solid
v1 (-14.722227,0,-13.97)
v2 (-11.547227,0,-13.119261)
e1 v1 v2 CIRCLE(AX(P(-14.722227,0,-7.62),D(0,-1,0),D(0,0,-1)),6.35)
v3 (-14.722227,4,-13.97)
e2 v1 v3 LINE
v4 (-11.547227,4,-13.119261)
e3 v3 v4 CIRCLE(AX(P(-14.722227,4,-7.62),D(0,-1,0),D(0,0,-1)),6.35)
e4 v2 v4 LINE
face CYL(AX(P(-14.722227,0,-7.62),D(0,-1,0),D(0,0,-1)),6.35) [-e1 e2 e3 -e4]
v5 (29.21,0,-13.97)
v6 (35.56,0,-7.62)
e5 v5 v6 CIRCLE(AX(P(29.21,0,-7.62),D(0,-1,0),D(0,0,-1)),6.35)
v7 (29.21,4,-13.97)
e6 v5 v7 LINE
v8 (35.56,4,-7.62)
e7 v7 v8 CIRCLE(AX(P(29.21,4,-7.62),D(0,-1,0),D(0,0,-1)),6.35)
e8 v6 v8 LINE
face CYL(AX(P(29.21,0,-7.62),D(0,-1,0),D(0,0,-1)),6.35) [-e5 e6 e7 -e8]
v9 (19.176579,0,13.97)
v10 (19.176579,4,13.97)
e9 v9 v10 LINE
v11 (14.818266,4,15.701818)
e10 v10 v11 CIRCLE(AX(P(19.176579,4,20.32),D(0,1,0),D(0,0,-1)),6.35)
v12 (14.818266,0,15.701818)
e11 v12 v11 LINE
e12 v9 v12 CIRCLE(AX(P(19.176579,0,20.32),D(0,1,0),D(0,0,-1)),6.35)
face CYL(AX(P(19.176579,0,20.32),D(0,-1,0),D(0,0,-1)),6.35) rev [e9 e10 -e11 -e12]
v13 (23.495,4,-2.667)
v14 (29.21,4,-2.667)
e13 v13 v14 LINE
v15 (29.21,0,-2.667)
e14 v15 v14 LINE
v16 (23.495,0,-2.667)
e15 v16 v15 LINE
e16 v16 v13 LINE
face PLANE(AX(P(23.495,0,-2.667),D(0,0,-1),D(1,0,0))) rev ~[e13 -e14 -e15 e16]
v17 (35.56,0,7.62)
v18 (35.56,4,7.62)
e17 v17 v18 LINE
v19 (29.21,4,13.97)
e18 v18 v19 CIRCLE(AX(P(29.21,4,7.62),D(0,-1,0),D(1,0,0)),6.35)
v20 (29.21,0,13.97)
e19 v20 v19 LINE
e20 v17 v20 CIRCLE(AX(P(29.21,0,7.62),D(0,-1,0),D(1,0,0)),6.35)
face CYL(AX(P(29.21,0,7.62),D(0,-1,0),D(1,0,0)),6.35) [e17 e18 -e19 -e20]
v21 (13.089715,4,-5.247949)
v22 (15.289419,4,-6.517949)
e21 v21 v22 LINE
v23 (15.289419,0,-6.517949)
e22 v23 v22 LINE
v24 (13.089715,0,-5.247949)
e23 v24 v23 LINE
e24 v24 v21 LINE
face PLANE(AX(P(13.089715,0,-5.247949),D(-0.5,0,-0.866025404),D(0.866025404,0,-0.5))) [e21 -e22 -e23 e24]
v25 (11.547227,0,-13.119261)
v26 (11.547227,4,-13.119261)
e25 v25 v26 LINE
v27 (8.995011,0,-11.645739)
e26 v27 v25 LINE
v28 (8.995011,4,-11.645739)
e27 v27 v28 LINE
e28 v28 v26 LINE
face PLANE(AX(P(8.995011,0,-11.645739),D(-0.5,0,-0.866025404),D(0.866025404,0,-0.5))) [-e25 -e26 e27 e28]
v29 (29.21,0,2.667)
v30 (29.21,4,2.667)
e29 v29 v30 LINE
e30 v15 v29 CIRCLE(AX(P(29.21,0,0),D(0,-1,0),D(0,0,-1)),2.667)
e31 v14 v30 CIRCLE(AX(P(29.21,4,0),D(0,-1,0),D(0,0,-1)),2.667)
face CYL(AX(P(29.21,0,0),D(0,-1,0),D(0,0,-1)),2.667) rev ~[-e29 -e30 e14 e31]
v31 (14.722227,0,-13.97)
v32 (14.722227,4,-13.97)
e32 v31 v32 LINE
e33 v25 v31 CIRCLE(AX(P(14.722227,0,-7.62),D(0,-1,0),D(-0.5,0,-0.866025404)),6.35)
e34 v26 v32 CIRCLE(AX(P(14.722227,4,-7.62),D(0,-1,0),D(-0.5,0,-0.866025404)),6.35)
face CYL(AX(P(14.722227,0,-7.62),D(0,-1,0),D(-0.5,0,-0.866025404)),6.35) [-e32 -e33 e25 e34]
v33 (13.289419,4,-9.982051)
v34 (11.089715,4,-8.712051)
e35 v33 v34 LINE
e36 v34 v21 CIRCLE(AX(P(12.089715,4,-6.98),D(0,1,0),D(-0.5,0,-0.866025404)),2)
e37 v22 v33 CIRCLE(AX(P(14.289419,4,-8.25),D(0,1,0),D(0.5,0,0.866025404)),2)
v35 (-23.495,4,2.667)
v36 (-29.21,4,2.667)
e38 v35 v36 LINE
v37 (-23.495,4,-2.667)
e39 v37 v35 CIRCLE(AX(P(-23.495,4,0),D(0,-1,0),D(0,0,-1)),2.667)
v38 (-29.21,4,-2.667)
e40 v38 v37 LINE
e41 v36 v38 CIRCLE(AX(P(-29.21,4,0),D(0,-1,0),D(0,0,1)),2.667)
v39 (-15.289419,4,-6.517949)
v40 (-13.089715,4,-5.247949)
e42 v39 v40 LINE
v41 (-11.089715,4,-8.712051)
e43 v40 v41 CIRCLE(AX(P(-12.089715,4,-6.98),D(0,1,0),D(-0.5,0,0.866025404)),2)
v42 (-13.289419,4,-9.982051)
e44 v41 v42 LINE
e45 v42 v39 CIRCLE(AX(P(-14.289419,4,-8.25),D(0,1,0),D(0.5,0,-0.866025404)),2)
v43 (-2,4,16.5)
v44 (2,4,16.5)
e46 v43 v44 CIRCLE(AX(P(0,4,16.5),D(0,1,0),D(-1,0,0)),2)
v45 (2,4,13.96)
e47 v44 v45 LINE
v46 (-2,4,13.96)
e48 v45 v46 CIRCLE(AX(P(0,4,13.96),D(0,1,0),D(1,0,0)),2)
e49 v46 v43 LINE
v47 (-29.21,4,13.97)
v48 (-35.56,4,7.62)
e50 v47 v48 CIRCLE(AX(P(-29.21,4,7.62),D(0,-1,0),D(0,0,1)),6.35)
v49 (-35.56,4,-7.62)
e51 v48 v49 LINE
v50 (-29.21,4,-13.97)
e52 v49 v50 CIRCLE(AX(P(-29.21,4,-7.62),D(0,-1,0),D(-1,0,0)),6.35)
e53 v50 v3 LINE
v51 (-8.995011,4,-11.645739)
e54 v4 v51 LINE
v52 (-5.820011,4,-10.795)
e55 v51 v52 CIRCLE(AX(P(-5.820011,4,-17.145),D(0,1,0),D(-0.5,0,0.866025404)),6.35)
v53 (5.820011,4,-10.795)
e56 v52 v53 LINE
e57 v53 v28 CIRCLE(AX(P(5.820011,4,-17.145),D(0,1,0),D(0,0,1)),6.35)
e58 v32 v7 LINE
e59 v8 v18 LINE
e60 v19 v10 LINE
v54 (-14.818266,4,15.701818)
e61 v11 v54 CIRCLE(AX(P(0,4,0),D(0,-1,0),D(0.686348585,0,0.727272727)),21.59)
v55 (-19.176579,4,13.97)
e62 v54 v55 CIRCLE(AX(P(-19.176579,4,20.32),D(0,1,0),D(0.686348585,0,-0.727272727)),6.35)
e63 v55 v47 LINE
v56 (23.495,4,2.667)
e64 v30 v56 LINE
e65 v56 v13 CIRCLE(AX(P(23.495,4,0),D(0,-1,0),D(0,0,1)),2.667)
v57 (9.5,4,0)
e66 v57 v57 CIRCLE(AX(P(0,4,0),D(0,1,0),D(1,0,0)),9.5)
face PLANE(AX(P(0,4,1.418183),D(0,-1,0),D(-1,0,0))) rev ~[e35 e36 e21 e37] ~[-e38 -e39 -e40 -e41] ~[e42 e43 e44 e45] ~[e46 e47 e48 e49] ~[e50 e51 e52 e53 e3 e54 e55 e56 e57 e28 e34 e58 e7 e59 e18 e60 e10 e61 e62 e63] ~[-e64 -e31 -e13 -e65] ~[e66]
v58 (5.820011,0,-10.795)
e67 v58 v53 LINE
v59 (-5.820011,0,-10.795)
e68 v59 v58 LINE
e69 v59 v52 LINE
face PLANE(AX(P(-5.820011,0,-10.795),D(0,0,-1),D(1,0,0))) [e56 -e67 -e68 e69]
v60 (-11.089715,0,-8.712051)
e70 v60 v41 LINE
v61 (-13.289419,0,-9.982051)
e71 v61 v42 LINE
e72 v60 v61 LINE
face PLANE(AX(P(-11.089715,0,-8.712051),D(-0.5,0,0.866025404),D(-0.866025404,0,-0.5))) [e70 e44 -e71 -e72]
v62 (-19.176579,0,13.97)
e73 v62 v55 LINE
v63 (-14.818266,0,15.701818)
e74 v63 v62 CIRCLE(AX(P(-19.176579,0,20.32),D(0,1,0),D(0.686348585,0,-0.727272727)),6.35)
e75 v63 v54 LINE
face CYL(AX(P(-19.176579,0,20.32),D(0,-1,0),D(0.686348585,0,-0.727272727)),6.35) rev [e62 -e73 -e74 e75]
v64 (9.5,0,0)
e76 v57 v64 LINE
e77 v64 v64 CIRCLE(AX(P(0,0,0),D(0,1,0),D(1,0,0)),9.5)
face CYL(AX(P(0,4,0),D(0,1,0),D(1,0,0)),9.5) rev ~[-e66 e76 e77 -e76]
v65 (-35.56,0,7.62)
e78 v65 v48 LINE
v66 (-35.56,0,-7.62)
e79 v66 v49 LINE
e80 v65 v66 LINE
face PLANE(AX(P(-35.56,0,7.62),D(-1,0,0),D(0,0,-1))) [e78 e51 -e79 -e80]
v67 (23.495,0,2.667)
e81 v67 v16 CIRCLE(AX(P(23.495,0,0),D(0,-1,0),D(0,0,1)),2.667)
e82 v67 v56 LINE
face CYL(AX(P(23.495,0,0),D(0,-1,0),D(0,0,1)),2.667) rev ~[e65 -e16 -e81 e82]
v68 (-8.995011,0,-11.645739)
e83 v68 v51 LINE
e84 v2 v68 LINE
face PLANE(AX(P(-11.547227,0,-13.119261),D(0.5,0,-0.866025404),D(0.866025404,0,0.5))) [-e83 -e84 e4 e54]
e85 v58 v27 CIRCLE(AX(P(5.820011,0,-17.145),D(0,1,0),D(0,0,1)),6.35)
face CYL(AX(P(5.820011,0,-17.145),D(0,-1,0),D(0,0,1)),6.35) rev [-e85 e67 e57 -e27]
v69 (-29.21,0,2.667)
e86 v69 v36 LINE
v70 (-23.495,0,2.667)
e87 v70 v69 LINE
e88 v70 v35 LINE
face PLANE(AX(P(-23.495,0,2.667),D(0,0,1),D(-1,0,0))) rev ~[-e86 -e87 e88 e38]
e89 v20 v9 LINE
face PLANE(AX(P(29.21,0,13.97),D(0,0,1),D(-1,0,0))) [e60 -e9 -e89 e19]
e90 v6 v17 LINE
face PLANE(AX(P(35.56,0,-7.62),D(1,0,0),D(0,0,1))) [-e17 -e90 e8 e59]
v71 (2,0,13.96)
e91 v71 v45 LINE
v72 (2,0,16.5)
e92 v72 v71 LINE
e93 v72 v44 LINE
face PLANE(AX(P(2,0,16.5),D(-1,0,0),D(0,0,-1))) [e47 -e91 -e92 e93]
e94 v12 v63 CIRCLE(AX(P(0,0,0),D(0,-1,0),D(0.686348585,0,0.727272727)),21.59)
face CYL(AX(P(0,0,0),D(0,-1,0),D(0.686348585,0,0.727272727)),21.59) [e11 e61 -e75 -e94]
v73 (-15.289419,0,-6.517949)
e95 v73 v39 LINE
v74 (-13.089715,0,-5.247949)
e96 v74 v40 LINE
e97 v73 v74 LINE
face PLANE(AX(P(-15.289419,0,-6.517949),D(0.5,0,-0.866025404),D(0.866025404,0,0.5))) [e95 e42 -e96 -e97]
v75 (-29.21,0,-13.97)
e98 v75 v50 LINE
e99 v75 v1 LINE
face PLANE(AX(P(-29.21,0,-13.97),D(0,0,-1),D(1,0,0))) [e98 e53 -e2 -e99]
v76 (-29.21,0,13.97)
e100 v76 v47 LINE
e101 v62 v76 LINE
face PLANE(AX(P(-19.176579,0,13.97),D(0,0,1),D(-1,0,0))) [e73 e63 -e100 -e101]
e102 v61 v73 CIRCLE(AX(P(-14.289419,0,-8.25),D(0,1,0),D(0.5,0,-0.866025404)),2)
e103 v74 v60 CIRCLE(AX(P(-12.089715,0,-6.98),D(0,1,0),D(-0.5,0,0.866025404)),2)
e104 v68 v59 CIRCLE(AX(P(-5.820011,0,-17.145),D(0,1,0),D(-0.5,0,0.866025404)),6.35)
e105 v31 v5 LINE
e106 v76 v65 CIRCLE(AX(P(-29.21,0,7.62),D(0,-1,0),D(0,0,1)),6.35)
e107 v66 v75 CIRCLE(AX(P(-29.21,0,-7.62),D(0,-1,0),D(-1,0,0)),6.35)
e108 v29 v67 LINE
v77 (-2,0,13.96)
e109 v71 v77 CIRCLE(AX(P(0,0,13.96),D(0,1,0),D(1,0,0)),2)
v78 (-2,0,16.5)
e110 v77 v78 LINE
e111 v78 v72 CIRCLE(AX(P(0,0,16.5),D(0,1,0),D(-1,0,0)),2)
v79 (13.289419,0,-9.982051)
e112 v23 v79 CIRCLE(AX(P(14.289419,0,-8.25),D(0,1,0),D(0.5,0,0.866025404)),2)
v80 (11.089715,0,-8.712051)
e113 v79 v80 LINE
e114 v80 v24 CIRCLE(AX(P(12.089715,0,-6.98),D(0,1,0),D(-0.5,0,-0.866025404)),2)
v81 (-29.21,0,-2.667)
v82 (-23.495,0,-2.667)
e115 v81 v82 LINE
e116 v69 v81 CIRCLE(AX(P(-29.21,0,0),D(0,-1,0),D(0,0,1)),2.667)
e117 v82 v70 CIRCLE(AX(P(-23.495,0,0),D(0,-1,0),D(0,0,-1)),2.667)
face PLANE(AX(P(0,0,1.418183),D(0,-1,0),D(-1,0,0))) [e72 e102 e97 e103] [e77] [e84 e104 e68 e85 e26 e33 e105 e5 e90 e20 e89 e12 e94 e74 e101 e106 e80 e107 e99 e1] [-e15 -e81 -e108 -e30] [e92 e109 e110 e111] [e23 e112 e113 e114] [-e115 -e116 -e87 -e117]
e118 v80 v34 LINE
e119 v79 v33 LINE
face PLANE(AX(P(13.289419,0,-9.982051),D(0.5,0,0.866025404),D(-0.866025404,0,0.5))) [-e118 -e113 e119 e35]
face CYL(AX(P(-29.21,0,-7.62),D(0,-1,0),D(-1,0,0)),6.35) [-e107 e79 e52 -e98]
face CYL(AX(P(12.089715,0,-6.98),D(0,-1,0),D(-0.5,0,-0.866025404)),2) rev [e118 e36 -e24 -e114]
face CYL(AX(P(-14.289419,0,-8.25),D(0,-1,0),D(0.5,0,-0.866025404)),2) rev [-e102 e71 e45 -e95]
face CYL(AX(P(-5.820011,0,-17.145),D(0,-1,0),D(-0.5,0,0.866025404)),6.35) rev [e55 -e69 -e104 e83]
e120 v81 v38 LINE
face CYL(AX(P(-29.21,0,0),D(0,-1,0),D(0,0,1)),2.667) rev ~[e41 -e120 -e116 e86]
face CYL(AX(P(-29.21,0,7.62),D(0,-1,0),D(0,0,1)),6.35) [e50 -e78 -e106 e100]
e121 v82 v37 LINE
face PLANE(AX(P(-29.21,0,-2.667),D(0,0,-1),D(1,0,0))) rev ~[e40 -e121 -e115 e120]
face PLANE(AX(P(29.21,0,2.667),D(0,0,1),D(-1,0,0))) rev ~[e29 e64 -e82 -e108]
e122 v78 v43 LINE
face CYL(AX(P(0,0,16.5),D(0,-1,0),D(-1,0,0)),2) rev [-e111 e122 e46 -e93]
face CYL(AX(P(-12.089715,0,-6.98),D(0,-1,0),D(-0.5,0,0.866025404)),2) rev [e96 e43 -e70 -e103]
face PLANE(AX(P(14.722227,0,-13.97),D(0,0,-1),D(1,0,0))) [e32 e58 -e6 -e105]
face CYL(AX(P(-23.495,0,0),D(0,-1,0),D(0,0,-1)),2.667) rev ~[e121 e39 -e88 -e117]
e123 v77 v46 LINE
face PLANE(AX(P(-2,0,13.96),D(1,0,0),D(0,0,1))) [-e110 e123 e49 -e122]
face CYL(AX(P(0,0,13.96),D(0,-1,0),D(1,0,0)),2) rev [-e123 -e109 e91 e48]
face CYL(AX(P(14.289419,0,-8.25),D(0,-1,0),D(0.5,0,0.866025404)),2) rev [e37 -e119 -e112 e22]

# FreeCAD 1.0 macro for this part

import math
import FreeCAD as App
import Part
import Sketcher

V = App.Vector
Q = App.Units.Quantity

doc = App.newDocument("Part")
params = doc.addObject("Spreadsheet::Sheet", "Params")
for row, (alias, value) in enumerate([
    ("sketch1_radius", "0.25 in"),
    ("sketch1_radius2", "0.85 in"),
    ("sketch1_height", "0.6 in"),
    ("sketch1_height2", "0.1 in"),
    ("sketch1_radius3", "0.105 in"),
    ("pad1_length", "4 mm"),
], start=1):
    params.set(f"A{row}", alias)
    params.set(f"B{row}", "=" + value)
    params.setAlias(f"B{row}", alias)

body = doc.addObject("PartDesign::Body", "Body")

sketch1 = body.newObject("Sketcher::SketchObject", "Sketch")
sketch1.AttachmentSupport = (doc.getObject("XZ_Plane"), [""])
sketch1.MapMode = "FlatFace"
sketch1.addGeometry([
    Part.LineSegment(V(29.2, -14, 0), V(14.7, -14, 0)),
    Part.ArcOfCircle(Part.Circle(V(14.7, -7.6, 0), V(0, 0, 1), 6.3), math.radians(-120), math.radians(-90)),
    Part.LineSegment(V(11.5, -13.1, 0), V(9, -11.6, 0)),
    Part.ArcOfCircle(Part.Circle(V(5.8, -17.1, 0), V(0, 0, 1), 6.4), math.radians(60), math.radians(90)),
    Part.LineSegment(V(5.8, -10.8, 0), V(-5.8, -10.8, 0)),
    Part.ArcOfCircle(Part.Circle(V(-5.8, -17.1, 0), V(0, 0, 1), 6.4), math.radians(90), math.radians(120)),
    Part.LineSegment(V(-9, -11.6, 0), V(-11.5, -13.1, 0)),
    Part.ArcOfCircle(Part.Circle(V(-14.7, -7.6, 0), V(0, 0, 1), 6.3), math.radians(-90), math.radians(-60)),
    Part.LineSegment(V(-14.7, -14, 0), V(-29.2, -14, 0)),
    Part.ArcOfCircle(Part.Circle(V(-29.2, -7.6, 0), V(0, 0, 1), 6.3), math.radians(180), math.radians(270)),
    Part.LineSegment(V(-35.6, -7.6, 0), V(-35.6, 7.6, 0)),
    Part.ArcOfCircle(Part.Circle(V(-29.2, 7.6, 0), V(0, 0, 1), 6.3), math.radians(90), math.radians(180)),
    Part.LineSegment(V(-29.2, 14, 0), V(-19.2, 14, 0)),
    Part.ArcOfCircle(Part.Circle(V(-19.2, 20.3, 0), V(0, 0, 1), 6.3), math.radians(-90), math.radians(-47)),
    Part.ArcOfCircle(Part.Circle(V(0, 0, 0), V(0, 0, 1), 21.6), math.radians(47), math.radians(133)),
    Part.ArcOfCircle(Part.Circle(V(19.2, 20.3, 0), V(0, 0, 1), 6.3), math.radians(-133), math.radians(-90)),
    Part.LineSegment(V(19.2, 14, 0), V(29.2, 14, 0)),
    Part.ArcOfCircle(Part.Circle(V(29.2, 7.6, 0), V(0, 0, 1), 6.3), math.radians(0), math.radians(90)),
    Part.LineSegment(V(35.6, 7.6, 0), V(35.6, -7.6, 0)),
    Part.ArcOfCircle(Part.Circle(V(29.2, -7.6, 0), V(0, 0, 1), 6.3), math.radians(-90), math.radians(0)),
    Part.ArcOfCircle(Part.Circle(V(0, 16.5, 0), V(0, 0, 1), 2), math.radians(0), math.radians(180)),
    Part.LineSegment(V(-2, 16.5, 0), V(-2, 14, 0)),
    Part.ArcOfCircle(Part.Circle(V(0, 14, 0), V(0, 0, 1), 2), math.radians(180), math.radians(360)),
    Part.LineSegment(V(2, 14, 0), V(2, 16.5, 0)),
    Part.LineSegment(V(23.5, -2.7, 0), V(29.2, -2.7, 0)),
    Part.ArcOfCircle(Part.Circle(V(29.2, 0, 0), V(0, 0, 1), 2.7), math.radians(-90), math.radians(90)),
    Part.LineSegment(V(29.2, 2.7, 0), V(23.5, 2.7, 0)),
    Part.ArcOfCircle(Part.Circle(V(23.5, 0, 0), V(0, 0, 1), 2.7), math.radians(90), math.radians(270)),
    Part.ArcOfCircle(Part.Circle(V(14.3, -8.2, 0), V(0, 0, 1), 2), math.radians(-120), math.radians(60)),
    Part.LineSegment(V(15.3, -6.5, 0), V(13.1, -5.2, 0)),
    Part.ArcOfCircle(Part.Circle(V(12.1, -7, 0), V(0, 0, 1), 2), math.radians(60), math.radians(240)),
    Part.LineSegment(V(11.1, -8.7, 0), V(13.3, -10, 0)),
    Part.Circle(V(0, 0, 0), V(0, 0, 1), 5.8),
    Part.LineSegment(V(-23.5, 2.7, 0), V(-29.2, 2.7, 0)),
    Part.ArcOfCircle(Part.Circle(V(-29.2, 0, 0), V(0, 0, 1), 2.7), math.radians(90), math.radians(270)),
    Part.LineSegment(V(-29.2, -2.7, 0), V(-23.5, -2.7, 0)),
    Part.ArcOfCircle(Part.Circle(V(-23.5, 0, 0), V(0, 0, 1), 2.7), math.radians(-90), math.radians(90)),
    Part.ArcOfCircle(Part.Circle(V(-14.3, -8.2, 0), V(0, 0, 1), 2), math.radians(120), math.radians(300)),
    Part.LineSegment(V(-13.3, -10, 0), V(-11.1, -8.7, 0)),
    Part.ArcOfCircle(Part.Circle(V(-12.1, -7, 0), V(0, 0, 1), 2), math.radians(-60), math.radians(120)),
    Part.LineSegment(V(-13.1, -5.2, 0), V(-15.3, -6.5, 0)),
], False)
sketch1.addConstraint([
    Sketcher.Constraint("Tangent", 0, 2, 1, 2),
    Sketcher.Constraint("Tangent", 1, 1, 2, 1),
    Sketcher.Constraint("Tangent", 2, 2, 3, 1),
    Sketcher.Constraint("Tangent", 3, 2, 4, 1),
    Sketcher.Constraint("Tangent", 4, 2, 5, 1),
    Sketcher.Constraint("Tangent", 5, 2, 6, 1),
    Sketcher.Constraint("Tangent", 6, 2, 7, 2),
    Sketcher.Constraint("Tangent", 7, 1, 8, 1),
    Sketcher.Constraint("Tangent", 8, 2, 9, 2),
    Sketcher.Constraint("Tangent", 9, 1, 10, 1),
    Sketcher.Constraint("Tangent", 10, 2, 11, 2),
    Sketcher.Constraint("Tangent", 11, 1, 12, 1),
    Sketcher.Constraint("Tangent", 12, 2, 13, 1),
    Sketcher.Constraint("Tangent", 13, 2, 14, 2),
    Sketcher.Constraint("Tangent", 14, 1, 15, 1),
    Sketcher.Constraint("Tangent", 15, 2, 16, 1),
    Sketcher.Constraint("Tangent", 16, 2, 17, 2),
    Sketcher.Constraint("Tangent", 17, 1, 18, 1),
    Sketcher.Constraint("Tangent", 18, 2, 19, 2),
    Sketcher.Constraint("Tangent", 19, 1, 0, 1),
    Sketcher.Constraint("Tangent", 20, 2, 21, 1),
    Sketcher.Constraint("Tangent", 21, 2, 22, 1),
    Sketcher.Constraint("Tangent", 22, 2, 23, 1),
    Sketcher.Constraint("Tangent", 23, 2, 20, 1),
    Sketcher.Constraint("Tangent", 24, 2, 25, 1),
    Sketcher.Constraint("Tangent", 25, 2, 26, 1),
    Sketcher.Constraint("Tangent", 26, 2, 27, 1),
    Sketcher.Constraint("Tangent", 27, 2, 24, 1),
    Sketcher.Constraint("Tangent", 28, 2, 29, 1),
    Sketcher.Constraint("Tangent", 29, 2, 30, 1),
    Sketcher.Constraint("Tangent", 30, 2, 31, 1),
    Sketcher.Constraint("Tangent", 31, 2, 28, 1),
    Sketcher.Constraint("Tangent", 33, 2, 34, 1),
    Sketcher.Constraint("Tangent", 34, 2, 35, 1),
    Sketcher.Constraint("Tangent", 35, 2, 36, 1),
    Sketcher.Constraint("Tangent", 36, 2, 33, 1),
    Sketcher.Constraint("Tangent", 37, 2, 38, 1),
    Sketcher.Constraint("Tangent", 38, 2, 39, 1),
    Sketcher.Constraint("Tangent", 39, 2, 40, 1),
    Sketcher.Constraint("Tangent", 40, 2, 37, 1),
    Sketcher.Constraint("Horizontal", 0),
    Sketcher.Constraint("Horizontal", 4),
    Sketcher.Constraint("Horizontal", 8),
    Sketcher.Constraint("Vertical", 10),
    Sketcher.Constraint("Horizontal", 12),
    Sketcher.Constraint("Horizontal", 16),
    Sketcher.Constraint("Vertical", 18),
    Sketcher.Constraint("Vertical", 21),
    Sketcher.Constraint("Vertical", 23),
    Sketcher.Constraint("Horizontal", 24),
    Sketcher.Constraint("Horizontal", 26),
    Sketcher.Constraint("Horizontal", 33),
    Sketcher.Constraint("Horizontal", 35),
    Sketcher.Constraint("Coincident", 14, 3, -1, 1),
    Sketcher.Constraint("Coincident", 32, 3, -1, 1),
    Sketcher.Constraint("Equal", 1, 3),
    Sketcher.Constraint("Equal", 3, 5),
    Sketcher.Constraint("Equal", 5, 7),
    Sketcher.Constraint("Equal", 7, 9),
    Sketcher.Constraint("Equal", 9, 11),
    Sketcher.Constraint("Equal", 11, 13),
    Sketcher.Constraint("Equal", 13, 15),
    Sketcher.Constraint("Equal", 15, 17),
    Sketcher.Constraint("Equal", 17, 19),
    Sketcher.Constraint("Equal", 22, 28),
    Sketcher.Constraint("Equal", 28, 30),
    Sketcher.Constraint("Equal", 27, 34),
    Sketcher.Constraint("Equal", 30, 37),
    Sketcher.Constraint("Equal", 37, 39),
    Sketcher.Constraint("Symmetric", 9, 3, 17, 3, -1, 1),
    Sketcher.Constraint("Symmetric", 25, 3, 34, 3, -1, 1),
    Sketcher.Constraint("Symmetric", 1, 3, 7, 3, -2),
    Sketcher.Constraint("Symmetric", 27, 3, 36, 3, -2),
    Sketcher.Constraint("Symmetric", 28, 3, 37, 3, -2),
    Sketcher.Constraint("Symmetric", 30, 3, 39, 3, -2),
    Sketcher.Constraint("PointOnObject", 20, 3, -2),
    Sketcher.Constraint("Parallel", 2, 29),
    Sketcher.Constraint("Parallel", 6, 38),
    Sketcher.Constraint("Horizontal", 13, 3, 15, 3),
    Sketcher.Constraint("Vertical", 19, 3, 25, 3),
    Sketcher.Constraint("Radius", 1, Q("0.25 in")),
    Sketcher.Constraint("Radius", 14, Q("0.85 in")),
    Sketcher.Constraint("DistanceY", 10, 1, 10, 2, Q("0.6 in")),
    Sketcher.Constraint("DistanceY", 21, 2, 21, 1, Q("0.1 in")),
    Sketcher.Constraint("Angle", 2, Q("150 deg")),
    Sketcher.Constraint("Radius", 25, Q("0.105 in")),
    Sketcher.Constraint("Distance", 29, Q("0.1 in")),
    Sketcher.Constraint("DistanceX", 9, 1, -1, 1, Q("1.4 in")),
    Sketcher.Constraint("Diameter", 32, 11.5),
    Sketcher.Constraint("DistanceX", 24, 1, 24, 2, Q("0.225 in")),
    Sketcher.Constraint("Radius", 20, 2.0),
    Sketcher.Constraint("DistanceY", 3, 3, -1, 1, Q("0.675 in")),
    Sketcher.Constraint("DistanceY", -1, 1, 20, 3, 16.5),
    Sketcher.Constraint("DistanceY", 28, 3, -1, 1, 8.25),
    Sketcher.Constraint("DistanceX", 0, 2, 0, 1, 14.487773),
    Sketcher.Constraint("DistanceX", -1, 1, 28, 3, 14.289419),
])
sketch1.setExpression("Constraints[80]", "Params.sketch1_radius")
sketch1.setExpression("Constraints[81]", "Params.sketch1_radius2")
sketch1.setExpression("Constraints[82]", "Params.sketch1_height")
sketch1.setExpression("Constraints[83]", "Params.sketch1_height2")
sketch1.setExpression("Constraints[85]", "Params.sketch1_radius3")
pad1 = body.newObject("PartDesign::Pad", "Pad")
pad1.Profile = sketch1
pad1.setExpression("Length", "Params.pad1_length")
pad1.Reversed = True

sketch2 = body.newObject("Sketcher::SketchObject", "Sketch001")
sketch2.AttachmentSupport = (doc.getObject("XZ_Plane"), [""])
sketch2.MapMode = "FlatFace"
sketch2.AttachmentOffset = App.Placement(V(0, 0, -4), App.Rotation())
sketch2.addGeometry(Part.Circle(V(0, 0, 0), V(0, 0, 1), 10), False)
sketch2.addConstraint([
    Sketcher.Constraint("Coincident", 0, 3, -1, 1),
    Sketcher.Constraint("Diameter", 0, 19.0),
])
pocket1 = body.newObject("PartDesign::Pocket", "Pocket")
pocket1.Profile = sketch2
pocket1.Type = "ThroughAll"
pocket1.Reversed = True

doc.recompute()
